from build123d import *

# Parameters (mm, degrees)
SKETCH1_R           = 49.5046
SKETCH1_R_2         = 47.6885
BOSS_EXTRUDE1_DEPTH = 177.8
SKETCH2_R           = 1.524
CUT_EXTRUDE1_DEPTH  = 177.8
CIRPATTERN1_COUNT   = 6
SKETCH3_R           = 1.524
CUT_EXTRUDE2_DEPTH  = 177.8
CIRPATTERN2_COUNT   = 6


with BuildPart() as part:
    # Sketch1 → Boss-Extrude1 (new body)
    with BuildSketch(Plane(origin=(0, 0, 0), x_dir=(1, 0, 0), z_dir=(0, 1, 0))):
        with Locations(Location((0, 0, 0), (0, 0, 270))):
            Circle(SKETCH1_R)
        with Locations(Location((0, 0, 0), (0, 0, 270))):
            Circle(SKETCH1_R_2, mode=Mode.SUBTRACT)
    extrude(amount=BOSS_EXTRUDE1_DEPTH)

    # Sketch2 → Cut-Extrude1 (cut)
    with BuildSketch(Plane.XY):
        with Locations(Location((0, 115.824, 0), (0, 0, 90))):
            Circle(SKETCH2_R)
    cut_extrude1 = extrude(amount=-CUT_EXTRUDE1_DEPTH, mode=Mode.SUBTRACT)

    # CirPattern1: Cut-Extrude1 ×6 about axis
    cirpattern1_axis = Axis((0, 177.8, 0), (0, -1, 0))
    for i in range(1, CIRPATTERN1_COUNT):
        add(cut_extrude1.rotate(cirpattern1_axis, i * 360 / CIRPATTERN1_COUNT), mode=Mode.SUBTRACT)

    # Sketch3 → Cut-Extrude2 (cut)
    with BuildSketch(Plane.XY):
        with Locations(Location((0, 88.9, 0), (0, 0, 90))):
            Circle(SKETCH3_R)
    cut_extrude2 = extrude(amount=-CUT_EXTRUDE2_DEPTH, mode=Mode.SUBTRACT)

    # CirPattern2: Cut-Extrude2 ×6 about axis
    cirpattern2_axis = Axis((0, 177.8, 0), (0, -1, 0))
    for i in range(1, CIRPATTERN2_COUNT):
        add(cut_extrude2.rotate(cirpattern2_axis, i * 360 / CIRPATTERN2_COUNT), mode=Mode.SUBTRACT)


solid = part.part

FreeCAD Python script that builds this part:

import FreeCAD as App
import Part
import Sketcher
Q = App.Units.Quantity

doc = App.newDocument("Part")
params = doc.addObject("Spreadsheet::Sheet", "Params")
for row, (alias, value) in enumerate([
    ("sketch1_diameter", "3.898 in"),
    ("sketch1_diameter2", "3.755 in"),
    ("pad1_length", "7 in"),
    ("sketch2_diameter", "0.12 in"),
    ("pocket1_length", "7 in"),
    ("sketch3_diameter", "0.12 in"),
    ("pocket2_length", "7 in"),
], start=1):
    params.set(f"A{row}", alias)
    params.set(f"B{row}", "=" + value)
    params.setAlias(f"B{row}", alias)

body = doc.addObject("PartDesign::Body", "Body")

sketch1 = doc.addObject("Sketcher::SketchObject", "Sketch")
body.addObject(sketch1)
sketch1.AttachmentSupport = (doc.XZ_Plane, [""])
sketch1.MapMode = "FlatFace"
sketch1.addGeometry(Part.Circle(App.Vector(0, 0, 0), App.Vector(0, 0, 1), 50), False)
sketch1.addGeometry(Part.Circle(App.Vector(0, 0, 0), App.Vector(0, 0, 1), 48), False)
sketch1.addConstraint(Sketcher.Constraint("Coincident", 0, 3, -1, 1))
sketch1.addConstraint(Sketcher.Constraint("Coincident", 1, 3, -1, 1))
sketch1.addConstraint(Sketcher.Constraint("Diameter", 0, Q("3.898 in")))
sketch1.addConstraint(Sketcher.Constraint("Diameter", 1, Q("3.755 in")))
sketch1.setExpression("Constraints[2]", "Params.sketch1_diameter")
sketch1.setExpression("Constraints[3]", "Params.sketch1_diameter2")
pad1 = doc.addObject("PartDesign::Pad", "Pad")
body.addObject(pad1)
pad1.Profile = sketch1
pad1.setExpression("Length", "Params.pad1_length")
pad1.Reversed = True

sketch2 = doc.addObject("Sketcher::SketchObject", "Sketch001")
body.addObject(sketch2)
sketch2.AttachmentSupport = (doc.XY_Plane, [""])
sketch2.MapMode = "FlatFace"
sketch2.addGeometry(Part.Circle(App.Vector(0, 115.8, 0), App.Vector(0, 0, 1), 1.5), False)
sketch2.addConstraint(Sketcher.Constraint("PointOnObject", 0, 3, -2))
sketch2.addConstraint(Sketcher.Constraint("Diameter", 0, Q("0.12 in")))
sketch2.addConstraint(Sketcher.Constraint("DistanceY", -1, 1, 0, 3, Q("4.56 in")))
sketch2.setExpression("Constraints[1]", "Params.sketch2_diameter")
pocket1 = doc.addObject("PartDesign::Pocket", "Pocket")
body.addObject(pocket1)
pocket1.Profile = sketch2
pocket1.setExpression("Length", "Params.pocket1_length")
doc.recompute()

polarpattern = doc.addObject("PartDesign::PolarPattern", "PolarPattern")
body.addObject(polarpattern)
polarpattern.Originals = [pocket1]
polarpattern.Axis = (doc.Y_Axis, [""])
polarpattern.Angle = 360
polarpattern.Occurrences = 6
body.Tip = polarpattern

sketch3 = doc.addObject("Sketcher::SketchObject", "Sketch002")
body.addObject(sketch3)
sketch3.AttachmentSupport = (doc.XY_Plane, [""])
sketch3.MapMode = "FlatFace"
sketch3.addGeometry(Part.Circle(App.Vector(0, 88.9, 0), App.Vector(0, 0, 1), 1.5), False)
sketch3.addConstraint(Sketcher.Constraint("PointOnObject", 0, 3, -2))
sketch3.addConstraint(Sketcher.Constraint("Diameter", 0, Q("0.12 in")))
sketch3.addConstraint(Sketcher.Constraint("DistanceY", -1, 1, 0, 3, Q("3.5 in")))
sketch3.setExpression("Constraints[1]", "Params.sketch3_diameter")
pocket2 = doc.addObject("PartDesign::Pocket", "Pocket001")
body.addObject(pocket2)
pocket2.Profile = sketch3
pocket2.setExpression("Length", "Params.pocket2_length")
doc.recompute()

polarpattern2 = doc.addObject("PartDesign::PolarPattern", "PolarPattern001")
body.addObject(polarpattern2)
polarpattern2.Originals = [pocket2]
polarpattern2.Axis = (doc.Y_Axis, [""])
polarpattern2.Angle = 360
polarpattern2.Occurrences = 6
body.Tip = polarpattern2

doc.recompute()
